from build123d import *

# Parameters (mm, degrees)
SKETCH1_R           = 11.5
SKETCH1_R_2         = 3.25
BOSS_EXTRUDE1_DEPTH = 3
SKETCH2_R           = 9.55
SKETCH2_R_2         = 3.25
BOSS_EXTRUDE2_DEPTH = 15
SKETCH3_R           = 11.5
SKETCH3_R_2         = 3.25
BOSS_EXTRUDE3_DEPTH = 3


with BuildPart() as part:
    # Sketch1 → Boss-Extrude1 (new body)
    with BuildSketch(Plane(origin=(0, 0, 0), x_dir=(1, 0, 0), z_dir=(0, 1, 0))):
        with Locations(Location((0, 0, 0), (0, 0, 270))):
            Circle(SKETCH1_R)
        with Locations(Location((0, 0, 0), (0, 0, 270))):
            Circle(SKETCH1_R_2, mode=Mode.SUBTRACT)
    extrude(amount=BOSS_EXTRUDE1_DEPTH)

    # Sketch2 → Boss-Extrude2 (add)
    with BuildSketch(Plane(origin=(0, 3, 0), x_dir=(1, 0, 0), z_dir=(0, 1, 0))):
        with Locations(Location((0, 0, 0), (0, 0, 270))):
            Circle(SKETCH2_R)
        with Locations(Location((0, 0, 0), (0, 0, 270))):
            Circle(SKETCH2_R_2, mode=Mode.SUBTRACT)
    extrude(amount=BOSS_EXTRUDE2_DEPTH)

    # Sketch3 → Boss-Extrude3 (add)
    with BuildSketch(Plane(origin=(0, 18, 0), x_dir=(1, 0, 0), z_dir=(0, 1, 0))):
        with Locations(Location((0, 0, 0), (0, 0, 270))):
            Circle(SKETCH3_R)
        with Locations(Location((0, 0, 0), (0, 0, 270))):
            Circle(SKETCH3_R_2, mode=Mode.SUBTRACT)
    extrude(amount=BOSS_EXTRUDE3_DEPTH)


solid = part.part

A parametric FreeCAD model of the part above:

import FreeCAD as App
import Part
import Sketcher

V = App.Vector

doc = App.newDocument("Part")
body = doc.addObject("PartDesign::Body", "Body")

# Sketch on XZ plane
sketch1 = body.newObject("Sketcher::SketchObject", "Sketch")
sketch1.AttachmentSupport = (doc.getObject("XZ_Plane"), [""])
sketch1.MapMode = "FlatFace"
sketch1.addGeometry([
    Part.Circle(V(0, 0, 0), V(0, 0, 1), 11.5),
    Part.Circle(V(0, 0, 0), V(0, 0, 1), 3.2),
], False)
sketch1.addConstraint([
    Sketcher.Constraint("Coincident", 0, 3, -1, 1),
    Sketcher.Constraint("Coincident", 1, 3, -1, 1),
    Sketcher.Constraint("Diameter", 0, 23.0),
    Sketcher.Constraint("Diameter", 1, 6.5),
])
pad1 = body.newObject("PartDesign::Pad", "Pad")
pad1.Profile = sketch1
pad1.Length = 3
pad1.Reversed = True

# Sketch on XZ plane
sketch2 = body.newObject("Sketcher::SketchObject", "Sketch001")
sketch2.AttachmentSupport = (doc.getObject("XZ_Plane"), [""])
sketch2.MapMode = "FlatFace"
sketch2.AttachmentOffset = App.Placement(V(0, 0, -3), App.Rotation())
sketch2.addGeometry([
    Part.Circle(V(0, 0, 0), V(0, 0, 1), 9.6),
    Part.Circle(V(0, 0, 0), V(0, 0, 1), 3.2),
], False)
sketch2.addConstraint([
    Sketcher.Constraint("Coincident", 0, 3, -1, 1),
    Sketcher.Constraint("Coincident", 1, 3, -1, 1),
    Sketcher.Constraint("Diameter", 0, 19.1),
    Sketcher.Constraint("Diameter", 1, 6.5),
])
pad2 = body.newObject("PartDesign::Pad", "Pad001")
pad2.Profile = sketch2
pad2.Length = 15
pad2.Reversed = True

# Sketch on XZ plane
sketch3 = body.newObject("Sketcher::SketchObject", "Sketch002")
sketch3.AttachmentSupport = (doc.getObject("XZ_Plane"), [""])
sketch3.MapMode = "FlatFace"
sketch3.AttachmentOffset = App.Placement(V(0, 0, -18), App.Rotation())
sketch3.addGeometry([
    Part.Circle(V(0, 0, 0), V(0, 0, 1), 11.5),
    Part.Circle(V(0, 0, 0), V(0, 0, 1), 3.2),
], False)
sketch3.addConstraint([
    Sketcher.Constraint("Coincident", 0, 3, -1, 1),
    Sketcher.Constraint("Coincident", 1, 3, -1, 1),
    Sketcher.Constraint("Diameter", 0, 23.0),
    Sketcher.Constraint("Diameter", 1, 6.5),
])
pad3 = body.newObject("PartDesign::Pad", "Pad002")
pad3.Profile = sketch3
pad3.Length = 3
pad3.Reversed = True

doc.recompute()
